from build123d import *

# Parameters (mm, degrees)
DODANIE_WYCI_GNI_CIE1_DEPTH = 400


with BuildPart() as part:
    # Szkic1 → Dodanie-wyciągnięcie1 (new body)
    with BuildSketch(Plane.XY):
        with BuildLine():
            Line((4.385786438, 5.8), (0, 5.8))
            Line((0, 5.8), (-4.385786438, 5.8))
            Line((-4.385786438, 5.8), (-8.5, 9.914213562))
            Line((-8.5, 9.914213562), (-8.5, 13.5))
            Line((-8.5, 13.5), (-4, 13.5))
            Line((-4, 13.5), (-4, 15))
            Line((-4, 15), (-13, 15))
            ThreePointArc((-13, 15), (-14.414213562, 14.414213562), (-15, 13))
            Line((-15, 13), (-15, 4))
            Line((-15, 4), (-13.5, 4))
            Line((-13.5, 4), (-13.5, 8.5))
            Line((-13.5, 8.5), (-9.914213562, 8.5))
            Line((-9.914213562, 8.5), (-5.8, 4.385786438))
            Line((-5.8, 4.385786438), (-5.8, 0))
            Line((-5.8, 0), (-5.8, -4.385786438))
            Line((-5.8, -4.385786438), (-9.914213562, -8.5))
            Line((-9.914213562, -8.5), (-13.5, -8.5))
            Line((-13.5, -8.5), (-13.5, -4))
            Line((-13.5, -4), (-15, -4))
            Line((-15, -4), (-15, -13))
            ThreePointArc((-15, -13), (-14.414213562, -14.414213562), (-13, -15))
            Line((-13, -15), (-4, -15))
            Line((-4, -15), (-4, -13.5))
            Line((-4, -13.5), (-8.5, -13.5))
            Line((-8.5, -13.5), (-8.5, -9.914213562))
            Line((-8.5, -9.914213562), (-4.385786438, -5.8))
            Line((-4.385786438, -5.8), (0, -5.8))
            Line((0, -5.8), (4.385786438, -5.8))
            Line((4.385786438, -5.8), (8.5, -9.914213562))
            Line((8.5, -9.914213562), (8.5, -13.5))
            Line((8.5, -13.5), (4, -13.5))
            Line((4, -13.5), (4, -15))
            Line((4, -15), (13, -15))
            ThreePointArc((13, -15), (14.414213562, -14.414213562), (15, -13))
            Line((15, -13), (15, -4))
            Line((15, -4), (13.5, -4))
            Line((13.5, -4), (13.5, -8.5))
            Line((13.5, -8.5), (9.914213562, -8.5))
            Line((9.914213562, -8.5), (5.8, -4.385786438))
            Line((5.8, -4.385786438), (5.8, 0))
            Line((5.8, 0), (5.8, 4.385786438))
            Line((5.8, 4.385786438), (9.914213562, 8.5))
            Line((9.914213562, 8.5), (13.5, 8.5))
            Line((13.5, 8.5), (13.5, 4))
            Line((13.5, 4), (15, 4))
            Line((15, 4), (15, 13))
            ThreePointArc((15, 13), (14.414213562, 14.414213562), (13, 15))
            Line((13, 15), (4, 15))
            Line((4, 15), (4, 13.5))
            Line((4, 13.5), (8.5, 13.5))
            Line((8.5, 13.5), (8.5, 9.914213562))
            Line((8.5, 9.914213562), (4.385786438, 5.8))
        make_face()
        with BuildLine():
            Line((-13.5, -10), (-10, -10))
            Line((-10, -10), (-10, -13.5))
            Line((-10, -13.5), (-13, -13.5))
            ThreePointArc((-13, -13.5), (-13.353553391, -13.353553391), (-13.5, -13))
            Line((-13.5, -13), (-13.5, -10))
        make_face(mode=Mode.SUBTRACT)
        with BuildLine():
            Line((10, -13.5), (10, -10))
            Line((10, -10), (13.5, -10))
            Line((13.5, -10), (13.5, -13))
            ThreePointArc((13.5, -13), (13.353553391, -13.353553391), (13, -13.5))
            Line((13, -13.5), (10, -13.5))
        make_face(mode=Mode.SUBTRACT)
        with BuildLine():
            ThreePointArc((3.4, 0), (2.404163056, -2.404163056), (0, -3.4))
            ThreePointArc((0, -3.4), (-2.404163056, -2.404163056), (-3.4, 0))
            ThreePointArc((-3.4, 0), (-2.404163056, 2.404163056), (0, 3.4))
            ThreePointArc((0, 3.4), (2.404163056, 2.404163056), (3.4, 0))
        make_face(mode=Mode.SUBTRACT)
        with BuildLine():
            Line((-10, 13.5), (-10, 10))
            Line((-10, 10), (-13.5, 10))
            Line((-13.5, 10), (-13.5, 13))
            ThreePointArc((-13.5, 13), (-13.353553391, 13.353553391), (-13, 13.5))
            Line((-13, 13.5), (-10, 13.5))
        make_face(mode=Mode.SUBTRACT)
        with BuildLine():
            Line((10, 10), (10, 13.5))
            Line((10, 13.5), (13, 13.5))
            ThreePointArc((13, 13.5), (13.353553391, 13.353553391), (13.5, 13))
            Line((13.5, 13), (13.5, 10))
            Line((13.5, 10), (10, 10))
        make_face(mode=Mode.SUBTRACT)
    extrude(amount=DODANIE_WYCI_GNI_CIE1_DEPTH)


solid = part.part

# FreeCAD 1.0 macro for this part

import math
import FreeCAD as App
import Part
import Sketcher
Q = App.Units.Quantity

doc = App.newDocument("Part")
body = doc.addObject("PartDesign::Body", "Body")

# Sketch on XY plane
sketch1 = body.newObject("Sketcher::SketchObject", "Sketch")
sketch1.AttachmentSupport = (doc.getObject("XY_Plane"), [""])
sketch1.MapMode = "FlatFace"
sketch1.addGeometry([
    Part.LineSegment(App.Vector(4.385786, 5.8, 0), App.Vector(-4.385786, 5.8, 0)),  # 0
    Part.LineSegment(App.Vector(-4.385786, 5.8, 0), App.Vector(-8.5, 9.914214, 0)),  # 1
    Part.LineSegment(App.Vector(-8.5, 9.914214, 0), App.Vector(-8.5, 13.5, 0)),  # 2
    Part.LineSegment(App.Vector(-8.5, 13.5, 0), App.Vector(-4, 13.5, 0)),  # 3
    Part.LineSegment(App.Vector(-4, 13.5, 0), App.Vector(-4, 15, 0)),  # 4
    Part.LineSegment(App.Vector(-4, 15, 0), App.Vector(-13, 15, 0)),  # 5
    Part.ArcOfCircle(Part.Circle(App.Vector(-13, 13, 0), App.Vector(0, 0, 1), 2), math.radians(90), math.radians(180)),  # 6
    Part.LineSegment(App.Vector(-15, 13, 0), App.Vector(-15, 4, 0)),  # 7
    Part.LineSegment(App.Vector(-15, 4, 0), App.Vector(-13.5, 4, 0)),  # 8
    Part.LineSegment(App.Vector(-13.5, 4, 0), App.Vector(-13.5, 8.5, 0)),  # 9
    Part.LineSegment(App.Vector(-13.5, 8.5, 0), App.Vector(-9.914214, 8.5, 0)),  # 10
    Part.LineSegment(App.Vector(-9.914214, 8.5, 0), App.Vector(-5.8, 4.385786, 0)),  # 11
    Part.LineSegment(App.Vector(-5.8, 4.385786, 0), App.Vector(-5.8, -4.385786, 0)),  # 12
    Part.LineSegment(App.Vector(-5.8, -4.385786, 0), App.Vector(-9.914214, -8.5, 0)),  # 13
    Part.LineSegment(App.Vector(-9.914214, -8.5, 0), App.Vector(-13.5, -8.5, 0)),  # 14
    Part.LineSegment(App.Vector(-13.5, -8.5, 0), App.Vector(-13.5, -4, 0)),  # 15
    Part.LineSegment(App.Vector(-13.5, -4, 0), App.Vector(-15, -4, 0)),  # 16
    Part.LineSegment(App.Vector(-15, -4, 0), App.Vector(-15, -13, 0)),  # 17
    Part.ArcOfCircle(Part.Circle(App.Vector(-13, -13, 0), App.Vector(0, 0, 1), 2), math.radians(-180), math.radians(-90)),  # 18
    Part.LineSegment(App.Vector(-13, -15, 0), App.Vector(-4, -15, 0)),  # 19
    Part.LineSegment(App.Vector(-4, -15, 0), App.Vector(-4, -13.5, 0)),  # 20
    Part.LineSegment(App.Vector(-4, -13.5, 0), App.Vector(-8.5, -13.5, 0)),  # 21
    Part.LineSegment(App.Vector(-8.5, -13.5, 0), App.Vector(-8.5, -9.914214, 0)),  # 22
    Part.LineSegment(App.Vector(-8.5, -9.914214, 0), App.Vector(-4.385786, -5.8, 0)),  # 23
    Part.LineSegment(App.Vector(-4.385786, -5.8, 0), App.Vector(4.385786, -5.8, 0)),  # 24
    Part.LineSegment(App.Vector(4.385786, -5.8, 0), App.Vector(8.5, -9.914214, 0)),  # 25
    Part.LineSegment(App.Vector(8.5, -9.914214, 0), App.Vector(8.5, -13.5, 0)),  # 26
    Part.LineSegment(App.Vector(8.5, -13.5, 0), App.Vector(4, -13.5, 0)),  # 27
    Part.LineSegment(App.Vector(4, -13.5, 0), App.Vector(4, -15, 0)),  # 28
    Part.LineSegment(App.Vector(4, -15, 0), App.Vector(13, -15, 0)),  # 29
    Part.ArcOfCircle(Part.Circle(App.Vector(13, -13, 0), App.Vector(0, 0, 1), 2), math.radians(-90), math.radians(0)),  # 30
    Part.LineSegment(App.Vector(15, -13, 0), App.Vector(15, -4, 0)),  # 31
    Part.LineSegment(App.Vector(15, -4, 0), App.Vector(13.5, -4, 0)),  # 32
    Part.LineSegment(App.Vector(13.5, -4, 0), App.Vector(13.5, -8.5, 0)),  # 33
    Part.LineSegment(App.Vector(13.5, -8.5, 0), App.Vector(9.914214, -8.5, 0)),  # 34
    Part.LineSegment(App.Vector(9.914214, -8.5, 0), App.Vector(5.8, -4.385786, 0)),  # 35
    Part.LineSegment(App.Vector(5.8, -4.385786, 0), App.Vector(5.8, 4.385786, 0)),  # 36
    Part.LineSegment(App.Vector(5.8, 4.385786, 0), App.Vector(9.914214, 8.5, 0)),  # 37
    Part.LineSegment(App.Vector(9.914214, 8.5, 0), App.Vector(13.5, 8.5, 0)),  # 38
    Part.LineSegment(App.Vector(13.5, 8.5, 0), App.Vector(13.5, 4, 0)),  # 39
    Part.LineSegment(App.Vector(13.5, 4, 0), App.Vector(15, 4, 0)),  # 40
    Part.LineSegment(App.Vector(15, 4, 0), App.Vector(15, 13, 0)),  # 41
    Part.ArcOfCircle(Part.Circle(App.Vector(13, 13, 0), App.Vector(0, 0, 1), 2), math.radians(0), math.radians(90)),  # 42
    Part.LineSegment(App.Vector(13, 15, 0), App.Vector(4, 15, 0)),  # 43
    Part.LineSegment(App.Vector(4, 15, 0), App.Vector(4, 13.5, 0)),  # 44
    Part.LineSegment(App.Vector(4, 13.5, 0), App.Vector(8.5, 13.5, 0)),  # 45
    Part.LineSegment(App.Vector(8.5, 13.5, 0), App.Vector(8.5, 9.914214, 0)),  # 46
    Part.LineSegment(App.Vector(8.5, 9.914214, 0), App.Vector(4.385786, 5.8, 0)),  # 47
    Part.LineSegment(App.Vector(-13.5, -13, 0), App.Vector(-13.5, -10, 0)),  # 48
    Part.LineSegment(App.Vector(-13.5, -10, 0), App.Vector(-10, -10, 0)),  # 49
    Part.LineSegment(App.Vector(-10, -10, 0), App.Vector(-10, -13.5, 0)),  # 50
    Part.LineSegment(App.Vector(-10, -13.5, 0), App.Vector(-13, -13.5, 0)),  # 51
    Part.ArcOfCircle(Part.Circle(App.Vector(-13, -13, 0), App.Vector(0, 0, 1), 0.5), math.radians(180), math.radians(270)),  # 52
    Part.LineSegment(App.Vector(13, -13.5, 0), App.Vector(10, -13.5, 0)),  # 53
    Part.LineSegment(App.Vector(10, -13.5, 0), App.Vector(10, -10, 0)),  # 54
    Part.LineSegment(App.Vector(10, -10, 0), App.Vector(13.5, -10, 0)),  # 55
    Part.LineSegment(App.Vector(13.5, -10, 0), App.Vector(13.5, -13, 0)),  # 56
    Part.ArcOfCircle(Part.Circle(App.Vector(13, -13, 0), App.Vector(0, 0, 1), 0.5), math.radians(-90), math.radians(0)),  # 57
    Part.LineSegment(App.Vector(-13, 13.5, 0), App.Vector(-10, 13.5, 0)),  # 58
    Part.LineSegment(App.Vector(-10, 13.5, 0), App.Vector(-10, 10, 0)),  # 59
    Part.LineSegment(App.Vector(-10, 10, 0), App.Vector(-13.5, 10, 0)),  # 60
    Part.LineSegment(App.Vector(-13.5, 10, 0), App.Vector(-13.5, 13, 0)),  # 61
    Part.ArcOfCircle(Part.Circle(App.Vector(-13, 13, 0), App.Vector(0, 0, 1), 0.5), math.radians(90), math.radians(180)),  # 62
    Part.ArcOfCircle(Part.Circle(App.Vector(0, 0, 0), App.Vector(0, 0, 1), 3.4), math.radians(0), math.radians(90)),  # 63
    Part.ArcOfCircle(Part.Circle(App.Vector(0, 0, 0), App.Vector(0, 0, 1), 3.4), math.radians(-90), math.radians(0)),  # 64
    Part.ArcOfCircle(Part.Circle(App.Vector(0, 0, 0), App.Vector(0, 0, 1), 3.4), math.radians(180), math.radians(270)),  # 65
    Part.ArcOfCircle(Part.Circle(App.Vector(0, 0, 0), App.Vector(0, 0, 1), 3.4), math.radians(90), math.radians(180)),  # 66
    Part.LineSegment(App.Vector(13.5, 10, 0), App.Vector(10, 10, 0)),  # 67
    Part.LineSegment(App.Vector(10, 10, 0), App.Vector(10, 13.5, 0)),  # 68
    Part.LineSegment(App.Vector(10, 13.5, 0), App.Vector(13, 13.5, 0)),  # 69
    Part.ArcOfCircle(Part.Circle(App.Vector(13, 13, 0), App.Vector(0, 0, 1), 0.5), math.radians(0), math.radians(90)),  # 70
    Part.LineSegment(App.Vector(13.5, 13, 0), App.Vector(13.5, 10, 0)),  # 71
], False)
sketch1.addConstraint([
    Sketcher.Constraint("Coincident", 0, 2, 1, 1),
    Sketcher.Constraint("Coincident", 1, 2, 2, 1),
    Sketcher.Constraint("Coincident", 2, 2, 3, 1),
    Sketcher.Constraint("Coincident", 3, 2, 4, 1),
    Sketcher.Constraint("Coincident", 4, 2, 5, 1),
    Sketcher.Constraint("Tangent", 5, 2, 6, 1),
    Sketcher.Constraint("Tangent", 6, 2, 7, 1),
    Sketcher.Constraint("Coincident", 7, 2, 8, 1),
    Sketcher.Constraint("Coincident", 8, 2, 9, 1),
    Sketcher.Constraint("Coincident", 9, 2, 10, 1),
    Sketcher.Constraint("Coincident", 10, 2, 11, 1),
    Sketcher.Constraint("Coincident", 11, 2, 12, 1),
    Sketcher.Constraint("Coincident", 12, 2, 13, 1),
    Sketcher.Constraint("Coincident", 13, 2, 14, 1),
    Sketcher.Constraint("Coincident", 14, 2, 15, 1),
    Sketcher.Constraint("Coincident", 15, 2, 16, 1),
    Sketcher.Constraint("Coincident", 16, 2, 17, 1),
    Sketcher.Constraint("Tangent", 17, 2, 18, 1),
    Sketcher.Constraint("Tangent", 18, 2, 19, 1),
    Sketcher.Constraint("Coincident", 19, 2, 20, 1),
    Sketcher.Constraint("Coincident", 20, 2, 21, 1),
    Sketcher.Constraint("Coincident", 21, 2, 22, 1),
    Sketcher.Constraint("Coincident", 22, 2, 23, 1),
    Sketcher.Constraint("Coincident", 23, 2, 24, 1),
    Sketcher.Constraint("Coincident", 24, 2, 25, 1),
    Sketcher.Constraint("Coincident", 25, 2, 26, 1),
    Sketcher.Constraint("Coincident", 26, 2, 27, 1),
    Sketcher.Constraint("Coincident", 27, 2, 28, 1),
    Sketcher.Constraint("Coincident", 28, 2, 29, 1),
    Sketcher.Constraint("Tangent", 29, 2, 30, 1),
    Sketcher.Constraint("Tangent", 30, 2, 31, 1),
    Sketcher.Constraint("Coincident", 31, 2, 32, 1),
    Sketcher.Constraint("Coincident", 32, 2, 33, 1),
    Sketcher.Constraint("Coincident", 33, 2, 34, 1),
    Sketcher.Constraint("Coincident", 34, 2, 35, 1),
    Sketcher.Constraint("Coincident", 35, 2, 36, 1),
    Sketcher.Constraint("Coincident", 36, 2, 37, 1),
    Sketcher.Constraint("Coincident", 37, 2, 38, 1),
    Sketcher.Constraint("Coincident", 38, 2, 39, 1),
    Sketcher.Constraint("Coincident", 39, 2, 40, 1),
    Sketcher.Constraint("Coincident", 40, 2, 41, 1),
    Sketcher.Constraint("Tangent", 41, 2, 42, 1),
    Sketcher.Constraint("Tangent", 42, 2, 43, 1),
    Sketcher.Constraint("Coincident", 43, 2, 44, 1),
    Sketcher.Constraint("Coincident", 44, 2, 45, 1),
    Sketcher.Constraint("Coincident", 45, 2, 46, 1),
    Sketcher.Constraint("Coincident", 46, 2, 47, 1),
    Sketcher.Constraint("Coincident", 47, 2, 0, 1),
    Sketcher.Constraint("Coincident", 48, 2, 49, 1),
    Sketcher.Constraint("Coincident", 49, 2, 50, 1),
    Sketcher.Constraint("Coincident", 50, 2, 51, 1),
    Sketcher.Constraint("Tangent", 51, 2, 52, 2),
    Sketcher.Constraint("Tangent", 52, 1, 48, 1),
    Sketcher.Constraint("Coincident", 53, 2, 54, 1),
    Sketcher.Constraint("Coincident", 54, 2, 55, 1),
    Sketcher.Constraint("Coincident", 55, 2, 56, 1),
    Sketcher.Constraint("Tangent", 56, 2, 57, 2),
    Sketcher.Constraint("Tangent", 57, 1, 53, 1),
    Sketcher.Constraint("Coincident", 58, 2, 59, 1),
    Sketcher.Constraint("Coincident", 59, 2, 60, 1),
    Sketcher.Constraint("Coincident", 60, 2, 61, 1),
    Sketcher.Constraint("Tangent", 61, 2, 62, 2),
    Sketcher.Constraint("Tangent", 62, 1, 58, 1),
    Sketcher.Constraint("Tangent", 63, 1, 64, 2),
    Sketcher.Constraint("Tangent", 64, 1, 65, 2),
    Sketcher.Constraint("Tangent", 65, 1, 66, 2),
    Sketcher.Constraint("Tangent", 66, 1, 63, 2),
    Sketcher.Constraint("Coincident", 67, 2, 68, 1),
    Sketcher.Constraint("Coincident", 68, 2, 69, 1),
    Sketcher.Constraint("Tangent", 69, 2, 70, 2),
    Sketcher.Constraint("Tangent", 70, 1, 71, 1),
    Sketcher.Constraint("Coincident", 71, 2, 67, 1),
    Sketcher.Constraint("Horizontal", 0),
    Sketcher.Constraint("Vertical", 2),
    Sketcher.Constraint("Horizontal", 3),
    Sketcher.Constraint("Vertical", 4),
    Sketcher.Constraint("Horizontal", 5),
    Sketcher.Constraint("Vertical", 7),
    Sketcher.Constraint("Horizontal", 8),
    Sketcher.Constraint("Vertical", 9),
    Sketcher.Constraint("Horizontal", 10),
    Sketcher.Constraint("Vertical", 12),
    Sketcher.Constraint("Horizontal", 14),
    Sketcher.Constraint("Vertical", 15),
    Sketcher.Constraint("Horizontal", 16),
    Sketcher.Constraint("Vertical", 17),
    Sketcher.Constraint("Horizontal", 19),
    Sketcher.Constraint("Vertical", 20),
    Sketcher.Constraint("Horizontal", 21),
    Sketcher.Constraint("Vertical", 22),
    Sketcher.Constraint("Horizontal", 24),
    Sketcher.Constraint("Vertical", 26),
    Sketcher.Constraint("Horizontal", 27),
    Sketcher.Constraint("Vertical", 28),
    Sketcher.Constraint("Horizontal", 29),
    Sketcher.Constraint("Vertical", 31),
    Sketcher.Constraint("Horizontal", 32),
    Sketcher.Constraint("Vertical", 33),
    Sketcher.Constraint("Horizontal", 34),
    Sketcher.Constraint("Vertical", 36),
    Sketcher.Constraint("Horizontal", 38),
    Sketcher.Constraint("Vertical", 39),
    Sketcher.Constraint("Horizontal", 40),
    Sketcher.Constraint("Vertical", 41),
    Sketcher.Constraint("Horizontal", 43),
    Sketcher.Constraint("Vertical", 44),
    Sketcher.Constraint("Horizontal", 45),
    Sketcher.Constraint("Vertical", 46),
    Sketcher.Constraint("Vertical", 48),
    Sketcher.Constraint("Horizontal", 49),
    Sketcher.Constraint("Vertical", 50),
    Sketcher.Constraint("Horizontal", 51),
    Sketcher.Constraint("Horizontal", 53),
    Sketcher.Constraint("Vertical", 54),
    Sketcher.Constraint("Horizontal", 55),
    Sketcher.Constraint("Vertical", 56),
    Sketcher.Constraint("Horizontal", 58),
    Sketcher.Constraint("Vertical", 59),
    Sketcher.Constraint("Horizontal", 60),
    Sketcher.Constraint("Vertical", 61),
    Sketcher.Constraint("Horizontal", 67),
    Sketcher.Constraint("Vertical", 68),
    Sketcher.Constraint("Horizontal", 69),
    Sketcher.Constraint("Vertical", 71),
    Sketcher.Constraint("Coincident", 63, 3, -1, 1),
    Sketcher.Constraint("Coincident", 52, 3, 18, 3),
    Sketcher.Constraint("Coincident", 57, 3, 30, 3),
    Sketcher.Constraint("Coincident", 62, 3, 6, 3),
    Sketcher.Constraint("Coincident", 70, 3, 42, 3),
    Sketcher.Constraint("Equal", 6, 18),
    Sketcher.Constraint("Equal", 18, 30),
    Sketcher.Constraint("Equal", 30, 42),
    Sketcher.Constraint("Equal", 52, 57),
    Sketcher.Constraint("Equal", 57, 62),
    Sketcher.Constraint("Equal", 63, 64),
    Sketcher.Constraint("Equal", 62, 70),
    Sketcher.Constraint("Symmetric", 6, 3, 30, 3, -1, 1),
    Sketcher.Constraint("Symmetric", 18, 3, 42, 3, -1, 1),
    Sketcher.Constraint("Symmetric", 0, 2, 24, 2, -1, 1),
    Sketcher.Constraint("Symmetric", 1, 2, 25, 2, -1, 1),
    Sketcher.Constraint("Symmetric", 3, 2, 27, 2, -1, 1),
    Sketcher.Constraint("Symmetric", 8, 2, 32, 2, -1, 1),
    Sketcher.Constraint("Symmetric", 10, 2, 34, 2, -1, 1),
    Sketcher.Constraint("Symmetric", 11, 2, 35, 2, -1, 1),
    Sketcher.Constraint("Symmetric", 13, 2, 37, 2, -1, 1),
    Sketcher.Constraint("Symmetric", 15, 2, 39, 2, -1, 1),
    Sketcher.Constraint("Symmetric", 20, 2, 44, 2, -1, 1),
    Sketcher.Constraint("Symmetric", 22, 2, 46, 2, -1, 1),
    Sketcher.Constraint("Symmetric", 54, 2, 59, 2, -1, 1),
    Sketcher.Constraint("Symmetric", 49, 2, 67, 2, -1, 1),
    Sketcher.Constraint("Symmetric", 18, 3, 30, 3, -2),
    Sketcher.Constraint("Symmetric", 22, 2, 25, 2, -2),
    Sketcher.Constraint("Symmetric", 20, 2, 27, 2, -2),
    Sketcher.Constraint("Symmetric", 15, 2, 32, 2, -2),
    Sketcher.Constraint("Symmetric", 13, 2, 34, 2, -2),
    Sketcher.Constraint("Symmetric", 49, 2, 54, 2, -2),
    Sketcher.Constraint("PointOnObject", 63, 1, -1),
    Sketcher.Constraint("PointOnObject", 64, 1, -2),
    Sketcher.Constraint("PointOnObject", 65, 1, -1),
    Sketcher.Constraint("PointOnObject", 66, 1, -2),
    Sketcher.Constraint("Parallel", 1, 11),
    Sketcher.Constraint("Perpendicular", 11, 13),
    Sketcher.Constraint("Parallel", 13, 23),
    Sketcher.Constraint("Perpendicular", 35, 37),
    Sketcher.Constraint("Parallel", 37, 47),
    Sketcher.Constraint("Horizontal", 12, 2, 35, 2),
    Sketcher.Constraint("Horizontal", 27, 2, 50, 2),
    Sketcher.Constraint("Vertical", 15, 2, 48, 2),
    Sketcher.Constraint("Equal", 38, 2),
    Sketcher.Constraint("Equal", 43, 7),
    Sketcher.Constraint("Equal", 45, 9),
    Sketcher.Constraint("Equal", 24, 12),
    Sketcher.Constraint("Equal", 69, 48),
    Sketcher.Constraint("Equal", 1, 11),
    Sketcher.Constraint("Radius", 6, Q("2 mm")),
    Sketcher.Constraint("Radius", 52, Q("0.5 mm")),
    Sketcher.Constraint("Radius", 63, Q("3.4 mm")),
    Sketcher.Constraint("DistanceX", 5, 2, 5, 1, Q("9 mm")),
    Sketcher.Constraint("DistanceX", 51, 2, 51, 1, Q("3 mm")),
    Sketcher.Constraint("DistanceX", 3, 1, 3, 2, Q("4.5 mm")),
    Sketcher.Constraint("DistanceX", 6, 3, -1, 1, Q("13 mm")),
    Sketcher.Constraint("DistanceY", -1, 1, 0, 2, Q("5.8 mm")),
    Sketcher.Constraint("DistanceX", 0, 2, 0, 1, Q("8.771573 mm")),
])
pad1 = body.newObject("PartDesign::Pad", "Pad")
pad1.Profile = sketch1
pad1.Length = 400

doc.recompute()
